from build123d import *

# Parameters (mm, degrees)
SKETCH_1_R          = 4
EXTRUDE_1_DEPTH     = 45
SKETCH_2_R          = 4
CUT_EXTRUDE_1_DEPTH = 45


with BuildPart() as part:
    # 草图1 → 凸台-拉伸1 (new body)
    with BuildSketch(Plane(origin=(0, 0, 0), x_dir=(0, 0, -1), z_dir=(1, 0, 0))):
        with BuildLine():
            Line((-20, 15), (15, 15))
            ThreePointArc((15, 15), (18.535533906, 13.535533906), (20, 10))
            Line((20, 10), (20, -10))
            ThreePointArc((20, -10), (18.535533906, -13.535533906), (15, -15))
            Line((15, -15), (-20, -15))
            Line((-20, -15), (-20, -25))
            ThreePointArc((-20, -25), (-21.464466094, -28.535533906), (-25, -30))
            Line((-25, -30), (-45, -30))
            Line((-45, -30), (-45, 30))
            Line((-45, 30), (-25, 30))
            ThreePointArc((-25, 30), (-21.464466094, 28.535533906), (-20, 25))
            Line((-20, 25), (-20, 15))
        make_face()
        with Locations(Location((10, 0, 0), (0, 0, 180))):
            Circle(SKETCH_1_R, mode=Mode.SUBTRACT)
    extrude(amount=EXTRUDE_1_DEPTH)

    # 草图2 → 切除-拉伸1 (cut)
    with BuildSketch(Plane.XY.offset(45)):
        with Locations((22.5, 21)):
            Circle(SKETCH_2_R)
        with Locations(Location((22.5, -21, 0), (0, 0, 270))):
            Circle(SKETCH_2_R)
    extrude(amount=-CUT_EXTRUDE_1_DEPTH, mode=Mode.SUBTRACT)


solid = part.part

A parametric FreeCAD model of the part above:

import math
import FreeCAD as App
import Part
import Sketcher
Q = App.Units.Quantity

doc = App.newDocument("Part")
body = doc.addObject("PartDesign::Body", "Body")

sketch1 = body.newObject("Sketcher::SketchObject", "Sketch")
sketch1.AttachmentSupport = (doc.getObject("YZ_Plane"), [""])
sketch1.MapMode = "FlatFace"
sketch1.addGeometry(Part.LineSegment(App.Vector(15, -15, 0), App.Vector(15, 20, 0)), False)
sketch1.addGeometry(Part.LineSegment(App.Vector(15, 20, 0), App.Vector(25, 20, 0)), False)
sketch1.addGeometry(Part.ArcOfCircle(Part.Circle(App.Vector(25, 25, 0), App.Vector(0, 0, 1), 5), math.radians(-90), math.radians(0)), False)
sketch1.addGeometry(Part.LineSegment(App.Vector(30, 25, 0), App.Vector(30, 45, 0)), False)
sketch1.addGeometry(Part.LineSegment(App.Vector(30, 45, 0), App.Vector(-30, 45, 0)), False)
sketch1.addGeometry(Part.LineSegment(App.Vector(-30, 45, 0), App.Vector(-30, 25, 0)), False)
sketch1.addGeometry(Part.ArcOfCircle(Part.Circle(App.Vector(-25, 25, 0), App.Vector(0, 0, 1), 5), math.radians(180), math.radians(270)), False)
sketch1.addGeometry(Part.LineSegment(App.Vector(-25, 20, 0), App.Vector(-15, 20, 0)), False)
sketch1.addGeometry(Part.LineSegment(App.Vector(-15, 20, 0), App.Vector(-15, -15, 0)), False)
sketch1.addGeometry(Part.ArcOfCircle(Part.Circle(App.Vector(-10, -15, 0), App.Vector(0, 0, 1), 5), math.radians(180), math.radians(270)), False)
sketch1.addGeometry(Part.LineSegment(App.Vector(-10, -20, 0), App.Vector(10, -20, 0)), False)
sketch1.addGeometry(Part.ArcOfCircle(Part.Circle(App.Vector(10, -15, 0), App.Vector(0, 0, 1), 5), math.radians(-90), math.radians(0)), False)
sketch1.addGeometry(Part.Circle(App.Vector(0, -10, 0), App.Vector(0, 0, 1), 4), False)
sketch1.addConstraint(Sketcher.Constraint("Coincident", 0, 2, 1, 1))
sketch1.addConstraint(Sketcher.Constraint("Tangent", 1, 2, 2, 1))
sketch1.addConstraint(Sketcher.Constraint("Tangent", 2, 2, 3, 1))
sketch1.addConstraint(Sketcher.Constraint("Coincident", 3, 2, 4, 1))
sketch1.addConstraint(Sketcher.Constraint("Coincident", 4, 2, 5, 1))
sketch1.addConstraint(Sketcher.Constraint("Tangent", 5, 2, 6, 1))
sketch1.addConstraint(Sketcher.Constraint("Tangent", 6, 2, 7, 1))
sketch1.addConstraint(Sketcher.Constraint("Coincident", 7, 2, 8, 1))
sketch1.addConstraint(Sketcher.Constraint("Tangent", 8, 2, 9, 1))
sketch1.addConstraint(Sketcher.Constraint("Tangent", 9, 2, 10, 1))
sketch1.addConstraint(Sketcher.Constraint("Tangent", 10, 2, 11, 1))
sketch1.addConstraint(Sketcher.Constraint("Tangent", 11, 2, 0, 1))
sketch1.addConstraint(Sketcher.Constraint("Vertical", 0))
sketch1.addConstraint(Sketcher.Constraint("Horizontal", 1))
sketch1.addConstraint(Sketcher.Constraint("Vertical", 3))
sketch1.addConstraint(Sketcher.Constraint("Horizontal", 4))
sketch1.addConstraint(Sketcher.Constraint("Vertical", 5))
sketch1.addConstraint(Sketcher.Constraint("Horizontal", 7))
sketch1.addConstraint(Sketcher.Constraint("Vertical", 8))
sketch1.addConstraint(Sketcher.Constraint("Horizontal", 10))
sketch1.addConstraint(Sketcher.Constraint("Equal", 2, 6))
sketch1.addConstraint(Sketcher.Constraint("Equal", 6, 9))
sketch1.addConstraint(Sketcher.Constraint("Equal", 9, 11))
sketch1.addConstraint(Sketcher.Constraint("Symmetric", 2, 3, 6, 3, -2))
sketch1.addConstraint(Sketcher.Constraint("PointOnObject", 12, 3, -2))
sketch1.addConstraint(Sketcher.Constraint("Equal", 1, 7))
sketch1.addConstraint(Sketcher.Constraint("Equal", 10, 3))
sketch1.addConstraint(Sketcher.Constraint("Diameter", 12, Q("8 mm")))
sketch1.addConstraint(Sketcher.Constraint("Radius", 2, Q("5 mm")))
sketch1.addConstraint(Sketcher.Constraint("DistanceX", 1, 1, 1, 2, Q("10 mm")))
sketch1.addConstraint(Sketcher.Constraint("DistanceX", 4, 2, 4, 1, Q("60 mm")))
sketch1.addConstraint(Sketcher.Constraint("DistanceY", 0, 1, 0, 2, Q("35 mm")))
sketch1.addConstraint(Sketcher.Constraint("DistanceY", -1, 1, 2, 3, Q("25 mm")))
sketch1.addConstraint(Sketcher.Constraint("DistanceY", 12, 3, -1, 1, Q("10 mm")))
pad1 = body.newObject("PartDesign::Pad", "Pad")
pad1.Profile = sketch1
pad1.Length = 45

sketch2 = body.newObject("Sketcher::SketchObject", "Sketch001")
sketch2.AttachmentSupport = (doc.getObject("XY_Plane"), [""])
sketch2.MapMode = "FlatFace"
sketch2.AttachmentOffset = App.Placement(App.Vector(0, 0, 45), App.Rotation())
sketch2.addGeometry(Part.Circle(App.Vector(22.5, 21, 0), App.Vector(0, 0, 1), 4), False)
sketch2.addGeometry(Part.Circle(App.Vector(22.5, -21, 0), App.Vector(0, 0, 1), 4), False)
sketch2.addConstraint(Sketcher.Constraint("Equal", 0, 1))
sketch2.addConstraint(Sketcher.Constraint("Symmetric", 0, 3, 1, 3, -1))
sketch2.addConstraint(Sketcher.Constraint("Diameter", 0, Q("8 mm")))
sketch2.addConstraint(Sketcher.Constraint("DistanceY", -1, 1, 0, 3, Q("21 mm")))
sketch2.addConstraint(Sketcher.Constraint("DistanceX", -1, 1, 0, 3, Q("22.5 mm")))
pocket1 = body.newObject("PartDesign::Pocket", "Pocket")
pocket1.Profile = sketch2
pocket1.Length = 45

doc.recompute()
